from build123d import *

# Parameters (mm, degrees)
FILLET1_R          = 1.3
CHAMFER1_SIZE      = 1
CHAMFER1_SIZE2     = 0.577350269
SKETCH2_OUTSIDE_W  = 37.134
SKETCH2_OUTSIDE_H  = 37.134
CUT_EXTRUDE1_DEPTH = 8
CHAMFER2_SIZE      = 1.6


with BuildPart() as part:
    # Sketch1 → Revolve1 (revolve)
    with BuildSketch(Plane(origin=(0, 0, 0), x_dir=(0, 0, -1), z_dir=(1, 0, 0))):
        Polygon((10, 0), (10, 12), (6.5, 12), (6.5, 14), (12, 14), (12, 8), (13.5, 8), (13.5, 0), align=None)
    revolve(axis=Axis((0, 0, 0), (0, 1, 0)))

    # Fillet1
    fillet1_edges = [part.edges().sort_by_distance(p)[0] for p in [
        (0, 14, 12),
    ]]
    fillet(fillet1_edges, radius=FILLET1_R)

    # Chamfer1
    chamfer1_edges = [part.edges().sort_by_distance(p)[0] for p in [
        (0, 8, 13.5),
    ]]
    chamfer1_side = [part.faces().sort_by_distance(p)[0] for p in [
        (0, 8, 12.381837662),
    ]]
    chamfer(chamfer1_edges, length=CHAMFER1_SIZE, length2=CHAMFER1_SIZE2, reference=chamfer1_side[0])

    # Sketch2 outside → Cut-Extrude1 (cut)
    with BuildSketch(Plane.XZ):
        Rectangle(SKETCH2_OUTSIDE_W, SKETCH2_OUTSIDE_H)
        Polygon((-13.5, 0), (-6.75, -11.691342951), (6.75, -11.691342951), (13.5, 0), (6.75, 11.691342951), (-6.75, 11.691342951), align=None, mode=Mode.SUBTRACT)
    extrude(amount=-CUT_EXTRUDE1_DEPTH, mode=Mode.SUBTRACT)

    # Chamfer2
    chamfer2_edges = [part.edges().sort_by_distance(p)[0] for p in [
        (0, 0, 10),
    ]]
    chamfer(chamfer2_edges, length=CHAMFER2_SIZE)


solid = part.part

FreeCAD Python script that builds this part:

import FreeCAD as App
import Part
import Sketcher
from FreeCAD import Vector
Q = App.Units.Quantity


def edges_at(feature, points):
    """Names of the edges that pass closest to the given points."""
    edges = feature.Shape.Edges
    near = lambda p: min(range(len(edges)), key=lambda i: edges[i].distToShape(Part.Vertex(*p))[0])
    return sorted({f"Edge{near(p) + 1}" for p in points})


def add_polygon(sketch, points):
    """Adds a closed chain of lines whose ends are joined by coincident constraints."""
    first, n = sketch.GeometryCount, len(points)
    for a, b in zip(points, points[1:] + points[:1]):
        sketch.addGeometry(Part.LineSegment(App.Vector(*a, 0), App.Vector(*b, 0)), False)
    for i in range(n):
        sketch.addConstraint(Sketcher.Constraint("Coincident", first + i, 2, first + (i + 1) % n, 1))

doc = App.newDocument("Part")
body = doc.addObject("PartDesign::Body", "Body")

# Sketch on YZ plane
sketch1 = body.newObject("Sketcher::SketchObject", "Sketch")
sketch1.AttachmentSupport = (doc.getObject("YZ_Plane"), [""])
sketch1.MapMode = "FlatFace"
add_polygon(sketch1, [(12, -10), (0, -10), (0, -13.5), (8, -13.5), (8, -12), (14, -12), (14, -6.5), (12, -6.5)])  # lines 0-7
sketch1.addConstraint(Sketcher.Constraint("Horizontal", 0))
sketch1.addConstraint(Sketcher.Constraint("Vertical", 1))
sketch1.addConstraint(Sketcher.Constraint("Horizontal", 2))
sketch1.addConstraint(Sketcher.Constraint("Vertical", 3))
sketch1.addConstraint(Sketcher.Constraint("Horizontal", 4))
sketch1.addConstraint(Sketcher.Constraint("Vertical", 5))
sketch1.addConstraint(Sketcher.Constraint("Horizontal", 6))
sketch1.addConstraint(Sketcher.Constraint("Vertical", 7))
sketch1.addConstraint(Sketcher.Constraint("PointOnObject", 0, 2, -2))
sketch1.addConstraint(Sketcher.Constraint("Equal", 1, 7))
sketch1.addConstraint(Sketcher.Constraint("DistanceX", 0, 2, 0, 1, Q("12 mm")))
sketch1.addConstraint(Sketcher.Constraint("DistanceX", 2, 1, 2, 2, Q("8 mm")))
sketch1.addConstraint(Sketcher.Constraint("DistanceX", 4, 1, 4, 2, Q("6 mm")))
sketch1.addConstraint(Sketcher.Constraint("DistanceY", 1, 2, 1, 1, Q("3.5 mm")))
sketch1.addConstraint(Sketcher.Constraint("DistanceY", 3, 1, 3, 2, Q("1.5 mm")))
sketch1.addConstraint(Sketcher.Constraint("DistanceY", 0, 2, -1, 1, Q("10 mm")))
revolution = body.newObject("PartDesign::Revolution", "Revolution")
revolution.Profile = sketch1
revolution.ReferenceAxis = (sketch1, ["H_Axis"])
revolution.Angle = 360
doc.recompute()

fillet = body.newObject("PartDesign::Fillet", "Fillet")
fillet.Base = (revolution, edges_at(revolution, [(0, 14, 12)]))
fillet.Radius = 1.3
doc.recompute()

chamfer = body.newObject("PartDesign::Chamfer", "Chamfer")
chamfer.Base = (fillet, edges_at(fillet, [(0, 8, 13.5)]))
chamfer.ChamferType = "Two distances"
chamfer.Size = 1
chamfer.Size2 = 0.57735

# Sketch on XZ plane
sketch2 = body.newObject("Sketcher::SketchObject", "Sketch001")
sketch2.AttachmentSupport = (doc.getObject("XZ_Plane"), [""])
sketch2.MapMode = "FlatFace"
add_polygon(sketch2, [(-18.567, 18.567), (-18.567, -18.567), (18.567, -18.567), (18.567, 18.567)])  # lines 0-3
add_polygon(sketch2, [(-6.75, -11.691343), (-13.5, 0), (-6.75, 11.691343), (6.75, 11.691343), (13.5, 0), (6.75, -11.691343)])  # lines 4-9
sketch2.addConstraint(Sketcher.Constraint("Vertical", 0))
sketch2.addConstraint(Sketcher.Constraint("Horizontal", 1))
sketch2.addConstraint(Sketcher.Constraint("Vertical", 2))
sketch2.addConstraint(Sketcher.Constraint("Horizontal", 3))
sketch2.addConstraint(Sketcher.Constraint("Horizontal", 6))
sketch2.addConstraint(Sketcher.Constraint("Horizontal", 9))
sketch2.addConstraint(Sketcher.Constraint("Symmetric", 0, 2, 2, 2, -1, 1))
sketch2.addConstraint(Sketcher.Constraint("Symmetric", 4, 2, 7, 2, -1, 1))
sketch2.addConstraint(Sketcher.Constraint("Symmetric", 5, 2, 8, 2, -1, 1))
sketch2.addConstraint(Sketcher.Constraint("PointOnObject", 4, 2, -1))
sketch2.addConstraint(Sketcher.Constraint("Parallel", 4, 7))
sketch2.addConstraint(Sketcher.Constraint("Vertical", 6, 2, 8, 2))
sketch2.addConstraint(Sketcher.Constraint("Equal", 3, 0))
sketch2.addConstraint(Sketcher.Constraint("Angle", 4, Q("120 deg")))
sketch2.addConstraint(Sketcher.Constraint("DistanceX", 6, 1, 6, 2, Q("13.5 mm")))
sketch2.addConstraint(Sketcher.Constraint("DistanceX", 4, 2, 7, 2, Q("27 mm")))
sketch2.addConstraint(Sketcher.Constraint("DistanceX", 1, 1, 1, 2, Q("37.134 mm")))
pocket1 = body.newObject("PartDesign::Pocket", "Pocket")
pocket1.Profile = sketch2
pocket1.Length = 8
doc.recompute()

chamfer2 = body.newObject("PartDesign::Chamfer", "Chamfer001")
chamfer2.Base = (pocket1, edges_at(pocket1, [(0, 0, 10)]))
chamfer2.Size = 1.6

doc.recompute()
